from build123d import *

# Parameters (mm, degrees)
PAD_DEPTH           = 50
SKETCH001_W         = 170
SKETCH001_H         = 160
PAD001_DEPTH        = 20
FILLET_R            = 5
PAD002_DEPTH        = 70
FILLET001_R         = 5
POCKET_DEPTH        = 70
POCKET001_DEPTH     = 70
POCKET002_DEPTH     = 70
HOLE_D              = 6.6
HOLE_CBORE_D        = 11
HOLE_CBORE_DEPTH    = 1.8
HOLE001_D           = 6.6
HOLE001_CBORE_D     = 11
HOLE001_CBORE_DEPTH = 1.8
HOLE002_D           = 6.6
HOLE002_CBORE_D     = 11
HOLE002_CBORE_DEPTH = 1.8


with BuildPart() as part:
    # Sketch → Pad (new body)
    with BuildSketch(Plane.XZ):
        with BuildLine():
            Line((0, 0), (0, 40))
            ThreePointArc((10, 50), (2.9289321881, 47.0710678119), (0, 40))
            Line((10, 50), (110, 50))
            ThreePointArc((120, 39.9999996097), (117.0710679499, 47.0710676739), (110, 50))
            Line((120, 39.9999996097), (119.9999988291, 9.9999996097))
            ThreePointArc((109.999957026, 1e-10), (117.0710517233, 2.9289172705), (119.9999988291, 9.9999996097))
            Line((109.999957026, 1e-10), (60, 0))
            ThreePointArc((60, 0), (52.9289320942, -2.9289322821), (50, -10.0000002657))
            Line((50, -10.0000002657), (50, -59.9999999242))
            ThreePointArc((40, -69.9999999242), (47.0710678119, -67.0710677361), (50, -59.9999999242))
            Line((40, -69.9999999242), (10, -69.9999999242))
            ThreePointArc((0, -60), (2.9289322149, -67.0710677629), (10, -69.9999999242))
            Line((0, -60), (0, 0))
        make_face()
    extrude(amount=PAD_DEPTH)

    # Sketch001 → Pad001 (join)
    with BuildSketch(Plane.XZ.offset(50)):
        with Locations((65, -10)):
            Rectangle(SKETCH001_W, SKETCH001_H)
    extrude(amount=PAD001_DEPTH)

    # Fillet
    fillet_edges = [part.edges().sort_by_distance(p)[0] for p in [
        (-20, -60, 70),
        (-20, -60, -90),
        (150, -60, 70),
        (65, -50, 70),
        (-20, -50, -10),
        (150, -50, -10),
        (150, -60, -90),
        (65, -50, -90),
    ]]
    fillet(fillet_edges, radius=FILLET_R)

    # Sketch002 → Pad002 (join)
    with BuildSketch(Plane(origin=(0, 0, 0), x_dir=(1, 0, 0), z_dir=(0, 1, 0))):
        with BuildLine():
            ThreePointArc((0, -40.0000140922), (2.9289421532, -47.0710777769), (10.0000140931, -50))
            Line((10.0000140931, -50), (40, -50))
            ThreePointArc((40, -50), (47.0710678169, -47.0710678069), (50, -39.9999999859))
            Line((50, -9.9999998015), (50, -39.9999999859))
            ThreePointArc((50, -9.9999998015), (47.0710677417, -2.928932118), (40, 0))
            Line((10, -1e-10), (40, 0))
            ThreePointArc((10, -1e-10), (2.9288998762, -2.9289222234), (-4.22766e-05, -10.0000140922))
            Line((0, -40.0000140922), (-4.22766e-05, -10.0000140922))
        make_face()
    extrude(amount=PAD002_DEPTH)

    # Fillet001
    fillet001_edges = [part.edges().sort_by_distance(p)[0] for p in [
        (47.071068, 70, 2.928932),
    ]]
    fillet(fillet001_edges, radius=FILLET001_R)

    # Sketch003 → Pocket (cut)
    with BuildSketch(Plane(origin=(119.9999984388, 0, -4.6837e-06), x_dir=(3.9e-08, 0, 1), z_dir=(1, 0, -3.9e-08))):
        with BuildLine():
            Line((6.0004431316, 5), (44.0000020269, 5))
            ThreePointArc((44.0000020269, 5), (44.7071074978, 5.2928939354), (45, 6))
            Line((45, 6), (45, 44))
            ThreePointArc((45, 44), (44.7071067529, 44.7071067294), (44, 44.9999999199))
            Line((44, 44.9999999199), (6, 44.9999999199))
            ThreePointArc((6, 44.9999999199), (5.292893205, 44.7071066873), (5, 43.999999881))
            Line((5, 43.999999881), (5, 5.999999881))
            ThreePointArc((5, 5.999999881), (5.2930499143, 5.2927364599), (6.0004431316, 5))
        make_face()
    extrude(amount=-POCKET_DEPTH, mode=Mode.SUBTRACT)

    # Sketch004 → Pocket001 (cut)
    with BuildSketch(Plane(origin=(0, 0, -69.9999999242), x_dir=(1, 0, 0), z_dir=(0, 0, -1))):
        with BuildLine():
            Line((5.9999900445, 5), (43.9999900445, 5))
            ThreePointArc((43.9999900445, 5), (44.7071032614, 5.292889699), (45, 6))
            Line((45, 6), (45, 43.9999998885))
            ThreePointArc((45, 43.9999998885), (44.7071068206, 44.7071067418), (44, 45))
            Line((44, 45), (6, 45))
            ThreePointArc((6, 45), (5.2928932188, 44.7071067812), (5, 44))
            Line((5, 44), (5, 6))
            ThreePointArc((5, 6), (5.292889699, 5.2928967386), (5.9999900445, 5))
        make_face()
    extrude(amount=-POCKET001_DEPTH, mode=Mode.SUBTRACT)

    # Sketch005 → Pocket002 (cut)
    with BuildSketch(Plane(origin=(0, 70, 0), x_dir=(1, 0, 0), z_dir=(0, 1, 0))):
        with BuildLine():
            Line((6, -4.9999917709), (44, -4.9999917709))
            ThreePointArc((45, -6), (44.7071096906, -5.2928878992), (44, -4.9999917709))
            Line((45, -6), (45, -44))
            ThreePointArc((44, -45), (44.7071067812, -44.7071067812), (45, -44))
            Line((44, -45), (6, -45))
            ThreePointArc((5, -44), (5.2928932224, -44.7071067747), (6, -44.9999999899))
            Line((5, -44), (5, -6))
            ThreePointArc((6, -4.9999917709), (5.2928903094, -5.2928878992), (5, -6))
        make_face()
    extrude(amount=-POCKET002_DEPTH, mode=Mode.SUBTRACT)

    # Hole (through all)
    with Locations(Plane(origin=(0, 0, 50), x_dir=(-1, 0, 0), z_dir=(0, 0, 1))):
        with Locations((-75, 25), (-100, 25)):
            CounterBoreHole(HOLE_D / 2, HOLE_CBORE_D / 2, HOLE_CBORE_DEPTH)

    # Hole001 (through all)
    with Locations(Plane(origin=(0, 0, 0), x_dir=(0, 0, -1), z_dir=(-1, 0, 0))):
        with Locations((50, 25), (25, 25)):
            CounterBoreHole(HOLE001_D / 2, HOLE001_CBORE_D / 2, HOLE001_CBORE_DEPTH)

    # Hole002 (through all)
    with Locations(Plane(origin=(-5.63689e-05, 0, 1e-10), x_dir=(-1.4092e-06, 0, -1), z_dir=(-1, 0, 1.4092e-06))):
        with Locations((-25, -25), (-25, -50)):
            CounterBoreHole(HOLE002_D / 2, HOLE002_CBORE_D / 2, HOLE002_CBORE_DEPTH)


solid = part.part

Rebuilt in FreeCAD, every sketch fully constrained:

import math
import FreeCAD as App
import Part
import Sketcher

V = App.Vector
Q = App.Units.Quantity


def edges_at(feature, points):
    """Names of the edges that pass closest to the given points."""
    edges = feature.Shape.Edges
    near = lambda p: min(range(len(edges)), key=lambda i: edges[i].distToShape(Part.Vertex(*p))[0])
    return sorted({f"Edge{near(p) + 1}" for p in points})

doc = App.newDocument("Part")
params = doc.addObject("Spreadsheet::Sheet", "Params")
for row, (alias, value) in enumerate([
    ("sketch1_radius", "10 mm"),
    ("sketch1_width", "30 mm"),
    ("sketch1_width2", "100 mm"),
    ("pad1_length", "50 mm"),
    ("sketch2_width", "170 mm"),
    ("sketch2_height", "160 mm"),
    ("pad2_length", "20 mm"),
    ("fillet_radius", "5 mm"),
    ("sketch3_radius", "10 mm"),
    ("sketch3_width", "30 mm"),
    ("pad3_length", "70 mm"),
    ("fillet2_radius", "5 mm"),
    ("sketch4_radius", "1 mm"),
    ("sketch4_width", "38 mm"),
    ("pocket1_length", "70 mm"),
    ("sketch5_radius", "1 mm"),
    ("sketch5_width", "38 mm"),
    ("pocket2_length", "70 mm"),
    ("sketch6_radius", "1 mm"),
    ("sketch6_width", "38 mm"),
    ("pocket3_length", "70 mm"),
    ("sketch7_diameter", "6.6 mm"),
    ("hole_diameter", "6.6 mm"),
    ("hole_cbore_diameter", "11 mm"),
    ("hole_cbore_depth", "1.8 mm"),
    ("sketch8_diameter", "6.6 mm"),
    ("hole2_diameter", "6.6 mm"),
    ("hole2_cbore_diameter", "11 mm"),
    ("hole2_cbore_depth", "1.8 mm"),
    ("sketch9_diameter", "6.6 mm"),
    ("hole3_diameter", "6.6 mm"),
    ("hole3_cbore_diameter", "11 mm"),
    ("hole3_cbore_depth", "1.8 mm"),
], start=1):
    params.set(f"A{row}", alias)
    params.set(f"B{row}", "=" + value)
    params.setAlias(f"B{row}", alias)

body = doc.addObject("PartDesign::Body", "Body")

# Sketch on XZ plane
sketch1 = doc.addObject("Sketcher::SketchObject", "Sketch")
body.addObject(sketch1)
sketch1.AttachmentSupport = (doc.XZ_Plane, [""])
sketch1.MapMode = "FlatFace"
sketch1.addGeometry([
    Part.ArcOfCircle(Part.Circle(V(10, 40, 0), V(0, 0, 1), 10), math.radians(90), math.radians(180)),  # 0
    Part.LineSegment(V(0, 40, 0), V(0, -60, 0)),  # 1
    Part.ArcOfCircle(Part.Circle(V(10, -60, 0), V(0, 0, 1), 10), math.radians(-180), math.radians(-90)),  # 2
    Part.LineSegment(V(10, -70, 0), V(40, -70, 0)),  # 3
    Part.ArcOfCircle(Part.Circle(V(40, -60, 0), V(0, 0, 1), 10), math.radians(-90), math.radians(0)),  # 4
    Part.LineSegment(V(50, -60, 0), V(50, -10, 0)),  # 5
    Part.ArcOfCircle(Part.Circle(V(60, -10, 0), V(0, 0, 1), 10), math.radians(90), math.radians(180)),  # 6
    Part.LineSegment(V(60, 0, 0), V(110, 0, 0)),  # 7
    Part.ArcOfCircle(Part.Circle(V(110, 10, 0), V(0, 0, 1), 10), math.radians(-90), math.radians(0)),  # 8
    Part.LineSegment(V(120, 10, 0), V(120, 40, 0)),  # 9
    Part.ArcOfCircle(Part.Circle(V(110, 40, 0), V(0, 0, 1), 10), math.radians(0), math.radians(90)),  # 10
    Part.LineSegment(V(110, 50, 0), V(10, 50, 0)),  # 11
], False)
sketch1.addConstraint([
    Sketcher.Constraint("Tangent", 0, 2, 1, 1),
    Sketcher.Constraint("Tangent", 1, 2, 2, 1),
    Sketcher.Constraint("Tangent", 2, 2, 3, 1),
    Sketcher.Constraint("Tangent", 3, 2, 4, 1),
    Sketcher.Constraint("Tangent", 4, 2, 5, 1),
    Sketcher.Constraint("Tangent", 5, 2, 6, 2),
    Sketcher.Constraint("Tangent", 6, 1, 7, 1),
    Sketcher.Constraint("Coincident", 7, 2, 8, 1),
    Sketcher.Constraint("Tangent", 8, 2, 9, 1),
    Sketcher.Constraint("Tangent", 9, 2, 10, 1),
    Sketcher.Constraint("Tangent", 10, 2, 11, 1),
    Sketcher.Constraint("Tangent", 11, 2, 0, 1),
    Sketcher.Constraint("Vertical", 1),
    Sketcher.Constraint("Horizontal", 3),
    Sketcher.Constraint("Vertical", 5),
    Sketcher.Constraint("Horizontal", 7),
    Sketcher.Constraint("Vertical", 9),
    Sketcher.Constraint("Horizontal", 11),
    Sketcher.Constraint("Equal", 0, 2),
    Sketcher.Constraint("Equal", 2, 4),
    Sketcher.Constraint("Equal", 4, 6),
    Sketcher.Constraint("Equal", 6, 8),
    Sketcher.Constraint("Equal", 8, 10),
    Sketcher.Constraint("PointOnObject", 0, 2, -2),
    Sketcher.Constraint("PointOnObject", 6, 1, -1),
    Sketcher.Constraint("Equal", 11, 1),
    Sketcher.Constraint("Equal", 3, 9),
    Sketcher.Constraint("Radius", 0, Q("10 mm")),
    Sketcher.Constraint("DistanceX", 3, 1, 3, 2, Q("30 mm")),
    Sketcher.Constraint("DistanceX", 11, 2, 11, 1, Q("100 mm")),
    Sketcher.Constraint("DistanceX", 7, 1, 7, 2, Q("49.999957 mm")),
])
sketch1.setExpression("Constraints[27]", "Params.sketch1_radius")
sketch1.setExpression("Constraints[28]", "Params.sketch1_width")
sketch1.setExpression("Constraints[29]", "Params.sketch1_width2")
pad1 = doc.addObject("PartDesign::Pad", "Pad")
body.addObject(pad1)
pad1.Profile = sketch1
pad1.setExpression("Length", "Params.pad1_length")

# Sketch on XZ plane
sketch2 = doc.addObject("Sketcher::SketchObject", "Sketch001")
body.addObject(sketch2)
sketch2.AttachmentSupport = (doc.XZ_Plane, [""])
sketch2.MapMode = "FlatFace"
sketch2.AttachmentOffset = App.Placement(V(0, 0, 50), App.Rotation())
sketch2.addGeometry([
    Part.LineSegment(V(-20, 70, 0), V(-20, -90, 0)),
    Part.LineSegment(V(-20, -90, 0), V(150, -90, 0)),
    Part.LineSegment(V(150, -90, 0), V(150, 70, 0)),
    Part.LineSegment(V(150, 70, 0), V(-20, 70, 0)),
], False)
sketch2.addConstraint([
    Sketcher.Constraint("Coincident", 0, 2, 1, 1),
    Sketcher.Constraint("Coincident", 1, 2, 2, 1),
    Sketcher.Constraint("Coincident", 2, 2, 3, 1),
    Sketcher.Constraint("Coincident", 3, 2, 0, 1),
    Sketcher.Constraint("Vertical", 0),
    Sketcher.Constraint("Horizontal", 1),
    Sketcher.Constraint("Vertical", 2),
    Sketcher.Constraint("Horizontal", 3),
    Sketcher.Constraint("DistanceX", 1, 1, 1, 2, Q("170 mm")),
    Sketcher.Constraint("DistanceY", 0, 2, 0, 1, Q("160 mm")),
    Sketcher.Constraint("DistanceX", 0, 2, -1, 1, Q("20 mm")),
    Sketcher.Constraint("DistanceY", 0, 2, -1, 1, Q("90 mm")),
])
sketch2.setExpression("Constraints[8]", "Params.sketch2_width")
sketch2.setExpression("Constraints[9]", "Params.sketch2_height")
pad2 = doc.addObject("PartDesign::Pad", "Pad001")
body.addObject(pad2)
pad2.Profile = sketch2
pad2.setExpression("Length", "Params.pad2_length")
doc.recompute()

fillet = doc.addObject("PartDesign::Fillet", "Fillet")
body.addObject(fillet)
fillet.Base = (pad2, edges_at(pad2, [
    (-20, -60, 70),
    (-20, -60, -90),
    (150, -60, 70),
    (65, -50, 70),
    (-20, -50, -10),
    (150, -50, -10),
    (150, -60, -90),
    (65, -50, -90),
]))
fillet.setExpression("Radius", "Params.fillet_radius")

# Sketch on XZ plane
sketch3 = doc.addObject("Sketcher::SketchObject", "Sketch002")
body.addObject(sketch3)
sketch3.AttachmentSupport = (doc.XZ_Plane, [""])
sketch3.MapMode = "FlatFace"
sketch3.addGeometry([
    Part.ArcOfCircle(Part.Circle(V(10, 40, 0), V(0, 0, 1), 10), math.radians(90), math.radians(180)),  # 0
    Part.LineSegment(V(10, 50, 0), V(40, 50, 0)),  # 1
    Part.ArcOfCircle(Part.Circle(V(40, 40, 0), V(0, 0, 1), 10), math.radians(0), math.radians(90)),  # 2
    Part.LineSegment(V(50, 40, 0), V(50, 10, 0)),  # 3
    Part.ArcOfCircle(Part.Circle(V(40, 10, 0), V(0, 0, 1), 10), math.radians(-90), math.radians(0)),  # 4
    Part.LineSegment(V(40, 0, 0), V(10, 0, 0)),  # 5
    Part.ArcOfCircle(Part.Circle(V(10, 10, 0), V(0, 0, 1), 10), math.radians(180), math.radians(270)),  # 6
    Part.LineSegment(V(0, 10, 0), V(0, 40, 0)),  # 7
], False)
sketch3.addConstraint([
    Sketcher.Constraint("Tangent", 0, 1, 1, 1),
    Sketcher.Constraint("Tangent", 1, 2, 2, 2),
    Sketcher.Constraint("Tangent", 2, 1, 3, 1),
    Sketcher.Constraint("Tangent", 3, 2, 4, 2),
    Sketcher.Constraint("Tangent", 4, 1, 5, 1),
    Sketcher.Constraint("Coincident", 5, 2, 6, 2),
    Sketcher.Constraint("Tangent", 6, 1, 7, 1),
    Sketcher.Constraint("Tangent", 7, 2, 0, 2),
    Sketcher.Constraint("Horizontal", 1),
    Sketcher.Constraint("Vertical", 3),
    Sketcher.Constraint("Horizontal", 5),
    Sketcher.Constraint("Equal", 0, 2),
    Sketcher.Constraint("Equal", 2, 4),
    Sketcher.Constraint("Equal", 4, 6),
    Sketcher.Constraint("PointOnObject", 4, 1, -1),
    Sketcher.Constraint("PointOnObject", 7, 2, -2),
    Sketcher.Constraint("Vertical", 0, 3, 5, 2),
    Sketcher.Constraint("Equal", 5, 3),
    Sketcher.Constraint("Radius", 0, Q("10 mm")),
    Sketcher.Constraint("DistanceX", 5, 2, 5, 1, Q("30 mm")),
    Sketcher.Constraint("DistanceX", -1, 1, 6, 3, Q("9.999958 mm")),
])
sketch3.setExpression("Constraints[18]", "Params.sketch3_radius")
sketch3.setExpression("Constraints[19]", "Params.sketch3_width")
pad3 = doc.addObject("PartDesign::Pad", "Pad002")
body.addObject(pad3)
pad3.Profile = sketch3
pad3.setExpression("Length", "Params.pad3_length")
pad3.Reversed = True
doc.recompute()

fillet2 = doc.addObject("PartDesign::Fillet", "Fillet001")
body.addObject(fillet2)
fillet2.Base = (pad3, edges_at(pad3, [(47.071, 70, 2.929)]))
fillet2.setExpression("Radius", "Params.fillet2_radius")

# Sketch on YZ plane
sketch4 = doc.addObject("Sketcher::SketchObject", "Sketch003")
body.addObject(sketch4)
sketch4.AttachmentSupport = (doc.YZ_Plane, [""])
sketch4.MapMode = "FlatFace"
sketch4.AttachmentOffset = App.Placement(V(0, 0, 119.999998), App.Rotation())
sketch4.addGeometry([
    Part.LineSegment(V(-5, 6, 0), V(-5, 44, 0)),  # 0
    Part.ArcOfCircle(Part.Circle(V(-6, 44, 0), V(0, 0, 1), 1), math.radians(0), math.radians(90)),  # 1
    Part.LineSegment(V(-6, 45, 0), V(-44, 45, 0)),  # 2
    Part.ArcOfCircle(Part.Circle(V(-44, 44, 0), V(0, 0, 1), 1), math.radians(90), math.radians(180)),  # 3
    Part.LineSegment(V(-45, 44, 0), V(-45, 6, 0)),  # 4
    Part.ArcOfCircle(Part.Circle(V(-44, 6, 0), V(0, 0, 1), 1), math.radians(180), math.radians(270)),  # 5
    Part.LineSegment(V(-44, 5, 0), V(-6, 5, 0)),  # 6
    Part.ArcOfCircle(Part.Circle(V(-6, 6, 0), V(0, 0, 1), 1), math.radians(-90), math.radians(0)),  # 7
], False)
sketch4.addConstraint([
    Sketcher.Constraint("Coincident", 0, 2, 1, 1),
    Sketcher.Constraint("Tangent", 1, 2, 2, 1),
    Sketcher.Constraint("Tangent", 2, 2, 3, 1),
    Sketcher.Constraint("Tangent", 3, 2, 4, 1),
    Sketcher.Constraint("Tangent", 4, 2, 5, 1),
    Sketcher.Constraint("Tangent", 5, 2, 6, 1),
    Sketcher.Constraint("Tangent", 6, 2, 7, 1),
    Sketcher.Constraint("Coincident", 7, 2, 0, 1),
    Sketcher.Constraint("Vertical", 0),
    Sketcher.Constraint("Horizontal", 2),
    Sketcher.Constraint("Vertical", 4),
    Sketcher.Constraint("Horizontal", 6),
    Sketcher.Constraint("Equal", 1, 3),
    Sketcher.Constraint("Equal", 3, 5),
    Sketcher.Constraint("Equal", 5, 7),
    Sketcher.Constraint("Equal", 6, 4),
    Sketcher.Constraint("Radius", 1, Q("1 mm")),
    Sketcher.Constraint("DistanceX", 2, 2, 2, 1, Q("38 mm")),
    Sketcher.Constraint("DistanceX", 1, 3, -1, 1, Q("6 mm")),
    Sketcher.Constraint("DistanceY", 0, 1, 0, 2, Q("37.999559 mm")),
    Sketcher.Constraint("DistanceY", -1, 1, 7, 2, Q("6.000438 mm")),
    Sketcher.Constraint("DistanceY", -1, 1, 1, 3, Q("43.999995 mm")),
])
sketch4.setExpression("Constraints[16]", "Params.sketch4_radius")
sketch4.setExpression("Constraints[17]", "Params.sketch4_width")
pocket1 = doc.addObject("PartDesign::Pocket", "Pocket")
body.addObject(pocket1)
pocket1.Profile = sketch4
pocket1.setExpression("Length", "Params.pocket1_length")

# Sketch on XY plane
sketch5 = doc.addObject("Sketcher::SketchObject", "Sketch004")
body.addObject(sketch5)
sketch5.AttachmentSupport = (doc.XY_Plane, [""])
sketch5.MapMode = "FlatFace"
sketch5.AttachmentOffset = App.Placement(V(0, 0, -70), App.Rotation())
sketch5.addGeometry([
    Part.LineSegment(V(6, -5, 0), V(44, -5, 0)),  # 0
    Part.ArcOfCircle(Part.Circle(V(44, -6, 0), V(0, 0, 1), 1), math.radians(0), math.radians(90)),  # 1
    Part.LineSegment(V(45, -6, 0), V(45, -44, 0)),  # 2
    Part.ArcOfCircle(Part.Circle(V(44, -44, 0), V(0, 0, 1), 1), math.radians(-90), math.radians(0)),  # 3
    Part.LineSegment(V(44, -45, 0), V(6, -45, 0)),  # 4
    Part.ArcOfCircle(Part.Circle(V(6, -44, 0), V(0, 0, 1), 1), math.radians(180), math.radians(270)),  # 5
    Part.LineSegment(V(5, -44, 0), V(5, -6, 0)),  # 6
    Part.ArcOfCircle(Part.Circle(V(6, -6, 0), V(0, 0, 1), 1), math.radians(90), math.radians(180)),  # 7
], False)
sketch5.addConstraint([
    Sketcher.Constraint("Coincident", 0, 2, 1, 2),
    Sketcher.Constraint("Tangent", 1, 1, 2, 1),
    Sketcher.Constraint("Tangent", 2, 2, 3, 2),
    Sketcher.Constraint("Tangent", 3, 1, 4, 1),
    Sketcher.Constraint("Tangent", 4, 2, 5, 2),
    Sketcher.Constraint("Tangent", 5, 1, 6, 1),
    Sketcher.Constraint("Tangent", 6, 2, 7, 2),
    Sketcher.Constraint("Coincident", 7, 1, 0, 1),
    Sketcher.Constraint("Horizontal", 0),
    Sketcher.Constraint("Vertical", 2),
    Sketcher.Constraint("Horizontal", 4),
    Sketcher.Constraint("Vertical", 6),
    Sketcher.Constraint("Equal", 1, 3),
    Sketcher.Constraint("Equal", 3, 5),
    Sketcher.Constraint("Equal", 5, 7),
    Sketcher.Constraint("Equal", 0, 4),
    Sketcher.Constraint("Equal", 4, 2),
    Sketcher.Constraint("Radius", 1, Q("1 mm")),
    Sketcher.Constraint("DistanceX", 0, 1, 0, 2, Q("38 mm")),
    Sketcher.Constraint("DistanceX", -1, 1, 1, 3, Q("44 mm")),
    Sketcher.Constraint("DistanceY", 1, 3, -1, 1, Q("6 mm")),
    Sketcher.Constraint("DistanceX", -1, 1, 0, 2, Q("43.99999 mm")),
])
sketch5.setExpression("Constraints[17]", "Params.sketch5_radius")
sketch5.setExpression("Constraints[18]", "Params.sketch5_width")
pocket2 = doc.addObject("PartDesign::Pocket", "Pocket001")
body.addObject(pocket2)
pocket2.Profile = sketch5
pocket2.setExpression("Length", "Params.pocket2_length")
pocket2.Reversed = True

# Sketch on XZ plane
sketch6 = doc.addObject("Sketcher::SketchObject", "Sketch005")
body.addObject(sketch6)
sketch6.AttachmentSupport = (doc.XZ_Plane, [""])
sketch6.MapMode = "FlatFace"
sketch6.AttachmentOffset = App.Placement(V(0, 0, -70), App.Rotation())
sketch6.addGeometry([
    Part.LineSegment(V(44, 5, 0), V(6, 5, 0)),  # 0
    Part.ArcOfCircle(Part.Circle(V(6, 6, 0), V(0, 0, 1), 1), math.radians(180), math.radians(270)),  # 1
    Part.LineSegment(V(5, 6, 0), V(5, 44, 0)),  # 2
    Part.ArcOfCircle(Part.Circle(V(6, 44, 0), V(0, 0, 1), 1), math.radians(90), math.radians(180)),  # 3
    Part.LineSegment(V(6, 45, 0), V(44, 45, 0)),  # 4
    Part.ArcOfCircle(Part.Circle(V(44, 44, 0), V(0, 0, 1), 1), math.radians(0), math.radians(90)),  # 5
    Part.LineSegment(V(45, 44, 0), V(45, 6, 0)),  # 6
    Part.ArcOfCircle(Part.Circle(V(44, 6, 0), V(0, 0, 1), 1), math.radians(-90), math.radians(0)),  # 7
], False)
sketch6.addConstraint([
    Sketcher.Constraint("Tangent", 0, 2, 1, 2),
    Sketcher.Constraint("Coincident", 1, 1, 2, 1),
    Sketcher.Constraint("Tangent", 2, 2, 3, 2),
    Sketcher.Constraint("Tangent", 3, 1, 4, 1),
    Sketcher.Constraint("Tangent", 4, 2, 5, 2),
    Sketcher.Constraint("Tangent", 5, 1, 6, 1),
    Sketcher.Constraint("Coincident", 6, 2, 7, 2),
    Sketcher.Constraint("Tangent", 7, 1, 0, 1),
    Sketcher.Constraint("Horizontal", 0),
    Sketcher.Constraint("Vertical", 2),
    Sketcher.Constraint("Horizontal", 4),
    Sketcher.Constraint("Vertical", 6),
    Sketcher.Constraint("Equal", 1, 3),
    Sketcher.Constraint("Equal", 3, 5),
    Sketcher.Constraint("Equal", 5, 7),
    Sketcher.Constraint("Horizontal", 1, 1, 6, 2),
    Sketcher.Constraint("Equal", 4, 2),
    Sketcher.Constraint("Radius", 1, Q("1 mm")),
    Sketcher.Constraint("DistanceX", 0, 2, 0, 1, Q("38 mm")),
    Sketcher.Constraint("DistanceX", -1, 1, 1, 3, Q("6 mm")),
    Sketcher.Constraint("DistanceY", -1, 1, 3, 3, Q("44 mm")),
    Sketcher.Constraint("DistanceY", -1, 1, 1, 3, Q("5.999992 mm")),
])
sketch6.setExpression("Constraints[17]", "Params.sketch6_radius")
sketch6.setExpression("Constraints[18]", "Params.sketch6_width")
pocket3 = doc.addObject("PartDesign::Pocket", "Pocket002")
body.addObject(pocket3)
pocket3.Profile = sketch6
pocket3.setExpression("Length", "Params.pocket3_length")
pocket3.Reversed = True

# Sketch on XY plane
sketch7 = doc.addObject("Sketcher::SketchObject", "Sketch006")
body.addObject(sketch7)
sketch7.AttachmentSupport = (doc.XY_Plane, [""])
sketch7.MapMode = "FlatFace"
sketch7.AttachmentOffset = App.Placement(V(0, 0, 50), App.Rotation())
sketch7.addGeometry([
    Part.Circle(V(75, -25, 0), V(0, 0, 1), 3.3),
    Part.Circle(V(100, -25, 0), V(0, 0, 1), 3.3),
], False)
sketch7.addConstraint([
    Sketcher.Constraint("Equal", 0, 1),
    Sketcher.Constraint("Horizontal", 0, 3, 1, 3),
    Sketcher.Constraint("Diameter", 0, Q("6.6 mm")),
    Sketcher.Constraint("DistanceX", -1, 1, 0, 3, Q("75 mm")),
    Sketcher.Constraint("DistanceY", 0, 3, -1, 1, Q("25 mm")),
    Sketcher.Constraint("DistanceX", -1, 1, 1, 3, Q("100 mm")),
])
sketch7.setExpression("Constraints[2]", "Params.sketch7_diameter")
doc.recompute()
hole = doc.addObject("PartDesign::Hole", "Hole")
body.addObject(hole)
hole.Profile = sketch7
hole.ThreadType = "None"
hole.setExpression("Diameter", "Params.hole_diameter")
hole.DepthType = "ThroughAll"
hole.HoleCutType = "Counterbore"
hole.setExpression("HoleCutDiameter", "Params.hole_cbore_diameter")
hole.setExpression("HoleCutDepth", "Params.hole_cbore_depth")

# Sketch on YZ plane
sketch8 = doc.addObject("Sketcher::SketchObject", "Sketch007")
body.addObject(sketch8)
sketch8.AttachmentSupport = (doc.YZ_Plane, [""])
sketch8.MapMode = "FlatFace"
sketch8.addGeometry([
    Part.Circle(V(-25, -50, 0), V(0, 0, 1), 3.3),
    Part.Circle(V(-25, -25, 0), V(0, 0, 1), 3.3),
], False)
sketch8.addConstraint([
    Sketcher.Constraint("Equal", 0, 1),
    Sketcher.Constraint("Vertical", 0, 3, 1, 3),
    Sketcher.Constraint("Diameter", 0, Q("6.6 mm")),
    Sketcher.Constraint("DistanceX", 0, 3, -1, 1, Q("25 mm")),
    Sketcher.Constraint("DistanceY", 0, 3, -1, 1, Q("50 mm")),
    Sketcher.Constraint("DistanceY", 1, 3, -1, 1, Q("25 mm")),
])
sketch8.setExpression("Constraints[2]", "Params.sketch8_diameter")
doc.recompute()
hole2 = doc.addObject("PartDesign::Hole", "Hole001")
body.addObject(hole2)
hole2.Profile = sketch8
hole2.ThreadType = "None"
hole2.setExpression("Diameter", "Params.hole2_diameter")
hole2.DepthType = "ThroughAll"
hole2.HoleCutType = "Counterbore"
hole2.setExpression("HoleCutDiameter", "Params.hole2_cbore_diameter")
hole2.setExpression("HoleCutDepth", "Params.hole2_cbore_depth")
hole2.Reversed = True

# Sketch on YZ plane
sketch9 = doc.addObject("Sketcher::SketchObject", "Sketch008")
body.addObject(sketch9)
sketch9.AttachmentSupport = (doc.YZ_Plane, [""])
sketch9.MapMode = "FlatFace"
sketch9.AttachmentOffset = App.Placement(V(0, 0, -0.000056), App.Rotation())
sketch9.addGeometry([
    Part.Circle(V(25, 25, 0), V(0, 0, 1), 3.3),
    Part.Circle(V(50, 25, 0), V(0, 0, 1), 3.3),
], False)
sketch9.addConstraint([
    Sketcher.Constraint("Equal", 0, 1),
    Sketcher.Constraint("Horizontal", 0, 3, 1, 3),
    Sketcher.Constraint("Diameter", 0, Q("6.6 mm")),
    Sketcher.Constraint("DistanceX", -1, 1, 0, 3, Q("25 mm")),
    Sketcher.Constraint("DistanceY", -1, 1, 0, 3, Q("25 mm")),
    Sketcher.Constraint("DistanceX", -1, 1, 1, 3, Q("50 mm")),
])
sketch9.setExpression("Constraints[2]", "Params.sketch9_diameter")
doc.recompute()
hole3 = doc.addObject("PartDesign::Hole", "Hole002")
body.addObject(hole3)
hole3.Profile = sketch9
hole3.ThreadType = "None"
hole3.setExpression("Diameter", "Params.hole3_diameter")
hole3.DepthType = "ThroughAll"
hole3.HoleCutType = "Counterbore"
hole3.setExpression("HoleCutDiameter", "Params.hole3_cbore_diameter")
hole3.setExpression("HoleCutDepth", "Params.hole3_cbore_depth")
hole3.Reversed = True

doc.recompute()
